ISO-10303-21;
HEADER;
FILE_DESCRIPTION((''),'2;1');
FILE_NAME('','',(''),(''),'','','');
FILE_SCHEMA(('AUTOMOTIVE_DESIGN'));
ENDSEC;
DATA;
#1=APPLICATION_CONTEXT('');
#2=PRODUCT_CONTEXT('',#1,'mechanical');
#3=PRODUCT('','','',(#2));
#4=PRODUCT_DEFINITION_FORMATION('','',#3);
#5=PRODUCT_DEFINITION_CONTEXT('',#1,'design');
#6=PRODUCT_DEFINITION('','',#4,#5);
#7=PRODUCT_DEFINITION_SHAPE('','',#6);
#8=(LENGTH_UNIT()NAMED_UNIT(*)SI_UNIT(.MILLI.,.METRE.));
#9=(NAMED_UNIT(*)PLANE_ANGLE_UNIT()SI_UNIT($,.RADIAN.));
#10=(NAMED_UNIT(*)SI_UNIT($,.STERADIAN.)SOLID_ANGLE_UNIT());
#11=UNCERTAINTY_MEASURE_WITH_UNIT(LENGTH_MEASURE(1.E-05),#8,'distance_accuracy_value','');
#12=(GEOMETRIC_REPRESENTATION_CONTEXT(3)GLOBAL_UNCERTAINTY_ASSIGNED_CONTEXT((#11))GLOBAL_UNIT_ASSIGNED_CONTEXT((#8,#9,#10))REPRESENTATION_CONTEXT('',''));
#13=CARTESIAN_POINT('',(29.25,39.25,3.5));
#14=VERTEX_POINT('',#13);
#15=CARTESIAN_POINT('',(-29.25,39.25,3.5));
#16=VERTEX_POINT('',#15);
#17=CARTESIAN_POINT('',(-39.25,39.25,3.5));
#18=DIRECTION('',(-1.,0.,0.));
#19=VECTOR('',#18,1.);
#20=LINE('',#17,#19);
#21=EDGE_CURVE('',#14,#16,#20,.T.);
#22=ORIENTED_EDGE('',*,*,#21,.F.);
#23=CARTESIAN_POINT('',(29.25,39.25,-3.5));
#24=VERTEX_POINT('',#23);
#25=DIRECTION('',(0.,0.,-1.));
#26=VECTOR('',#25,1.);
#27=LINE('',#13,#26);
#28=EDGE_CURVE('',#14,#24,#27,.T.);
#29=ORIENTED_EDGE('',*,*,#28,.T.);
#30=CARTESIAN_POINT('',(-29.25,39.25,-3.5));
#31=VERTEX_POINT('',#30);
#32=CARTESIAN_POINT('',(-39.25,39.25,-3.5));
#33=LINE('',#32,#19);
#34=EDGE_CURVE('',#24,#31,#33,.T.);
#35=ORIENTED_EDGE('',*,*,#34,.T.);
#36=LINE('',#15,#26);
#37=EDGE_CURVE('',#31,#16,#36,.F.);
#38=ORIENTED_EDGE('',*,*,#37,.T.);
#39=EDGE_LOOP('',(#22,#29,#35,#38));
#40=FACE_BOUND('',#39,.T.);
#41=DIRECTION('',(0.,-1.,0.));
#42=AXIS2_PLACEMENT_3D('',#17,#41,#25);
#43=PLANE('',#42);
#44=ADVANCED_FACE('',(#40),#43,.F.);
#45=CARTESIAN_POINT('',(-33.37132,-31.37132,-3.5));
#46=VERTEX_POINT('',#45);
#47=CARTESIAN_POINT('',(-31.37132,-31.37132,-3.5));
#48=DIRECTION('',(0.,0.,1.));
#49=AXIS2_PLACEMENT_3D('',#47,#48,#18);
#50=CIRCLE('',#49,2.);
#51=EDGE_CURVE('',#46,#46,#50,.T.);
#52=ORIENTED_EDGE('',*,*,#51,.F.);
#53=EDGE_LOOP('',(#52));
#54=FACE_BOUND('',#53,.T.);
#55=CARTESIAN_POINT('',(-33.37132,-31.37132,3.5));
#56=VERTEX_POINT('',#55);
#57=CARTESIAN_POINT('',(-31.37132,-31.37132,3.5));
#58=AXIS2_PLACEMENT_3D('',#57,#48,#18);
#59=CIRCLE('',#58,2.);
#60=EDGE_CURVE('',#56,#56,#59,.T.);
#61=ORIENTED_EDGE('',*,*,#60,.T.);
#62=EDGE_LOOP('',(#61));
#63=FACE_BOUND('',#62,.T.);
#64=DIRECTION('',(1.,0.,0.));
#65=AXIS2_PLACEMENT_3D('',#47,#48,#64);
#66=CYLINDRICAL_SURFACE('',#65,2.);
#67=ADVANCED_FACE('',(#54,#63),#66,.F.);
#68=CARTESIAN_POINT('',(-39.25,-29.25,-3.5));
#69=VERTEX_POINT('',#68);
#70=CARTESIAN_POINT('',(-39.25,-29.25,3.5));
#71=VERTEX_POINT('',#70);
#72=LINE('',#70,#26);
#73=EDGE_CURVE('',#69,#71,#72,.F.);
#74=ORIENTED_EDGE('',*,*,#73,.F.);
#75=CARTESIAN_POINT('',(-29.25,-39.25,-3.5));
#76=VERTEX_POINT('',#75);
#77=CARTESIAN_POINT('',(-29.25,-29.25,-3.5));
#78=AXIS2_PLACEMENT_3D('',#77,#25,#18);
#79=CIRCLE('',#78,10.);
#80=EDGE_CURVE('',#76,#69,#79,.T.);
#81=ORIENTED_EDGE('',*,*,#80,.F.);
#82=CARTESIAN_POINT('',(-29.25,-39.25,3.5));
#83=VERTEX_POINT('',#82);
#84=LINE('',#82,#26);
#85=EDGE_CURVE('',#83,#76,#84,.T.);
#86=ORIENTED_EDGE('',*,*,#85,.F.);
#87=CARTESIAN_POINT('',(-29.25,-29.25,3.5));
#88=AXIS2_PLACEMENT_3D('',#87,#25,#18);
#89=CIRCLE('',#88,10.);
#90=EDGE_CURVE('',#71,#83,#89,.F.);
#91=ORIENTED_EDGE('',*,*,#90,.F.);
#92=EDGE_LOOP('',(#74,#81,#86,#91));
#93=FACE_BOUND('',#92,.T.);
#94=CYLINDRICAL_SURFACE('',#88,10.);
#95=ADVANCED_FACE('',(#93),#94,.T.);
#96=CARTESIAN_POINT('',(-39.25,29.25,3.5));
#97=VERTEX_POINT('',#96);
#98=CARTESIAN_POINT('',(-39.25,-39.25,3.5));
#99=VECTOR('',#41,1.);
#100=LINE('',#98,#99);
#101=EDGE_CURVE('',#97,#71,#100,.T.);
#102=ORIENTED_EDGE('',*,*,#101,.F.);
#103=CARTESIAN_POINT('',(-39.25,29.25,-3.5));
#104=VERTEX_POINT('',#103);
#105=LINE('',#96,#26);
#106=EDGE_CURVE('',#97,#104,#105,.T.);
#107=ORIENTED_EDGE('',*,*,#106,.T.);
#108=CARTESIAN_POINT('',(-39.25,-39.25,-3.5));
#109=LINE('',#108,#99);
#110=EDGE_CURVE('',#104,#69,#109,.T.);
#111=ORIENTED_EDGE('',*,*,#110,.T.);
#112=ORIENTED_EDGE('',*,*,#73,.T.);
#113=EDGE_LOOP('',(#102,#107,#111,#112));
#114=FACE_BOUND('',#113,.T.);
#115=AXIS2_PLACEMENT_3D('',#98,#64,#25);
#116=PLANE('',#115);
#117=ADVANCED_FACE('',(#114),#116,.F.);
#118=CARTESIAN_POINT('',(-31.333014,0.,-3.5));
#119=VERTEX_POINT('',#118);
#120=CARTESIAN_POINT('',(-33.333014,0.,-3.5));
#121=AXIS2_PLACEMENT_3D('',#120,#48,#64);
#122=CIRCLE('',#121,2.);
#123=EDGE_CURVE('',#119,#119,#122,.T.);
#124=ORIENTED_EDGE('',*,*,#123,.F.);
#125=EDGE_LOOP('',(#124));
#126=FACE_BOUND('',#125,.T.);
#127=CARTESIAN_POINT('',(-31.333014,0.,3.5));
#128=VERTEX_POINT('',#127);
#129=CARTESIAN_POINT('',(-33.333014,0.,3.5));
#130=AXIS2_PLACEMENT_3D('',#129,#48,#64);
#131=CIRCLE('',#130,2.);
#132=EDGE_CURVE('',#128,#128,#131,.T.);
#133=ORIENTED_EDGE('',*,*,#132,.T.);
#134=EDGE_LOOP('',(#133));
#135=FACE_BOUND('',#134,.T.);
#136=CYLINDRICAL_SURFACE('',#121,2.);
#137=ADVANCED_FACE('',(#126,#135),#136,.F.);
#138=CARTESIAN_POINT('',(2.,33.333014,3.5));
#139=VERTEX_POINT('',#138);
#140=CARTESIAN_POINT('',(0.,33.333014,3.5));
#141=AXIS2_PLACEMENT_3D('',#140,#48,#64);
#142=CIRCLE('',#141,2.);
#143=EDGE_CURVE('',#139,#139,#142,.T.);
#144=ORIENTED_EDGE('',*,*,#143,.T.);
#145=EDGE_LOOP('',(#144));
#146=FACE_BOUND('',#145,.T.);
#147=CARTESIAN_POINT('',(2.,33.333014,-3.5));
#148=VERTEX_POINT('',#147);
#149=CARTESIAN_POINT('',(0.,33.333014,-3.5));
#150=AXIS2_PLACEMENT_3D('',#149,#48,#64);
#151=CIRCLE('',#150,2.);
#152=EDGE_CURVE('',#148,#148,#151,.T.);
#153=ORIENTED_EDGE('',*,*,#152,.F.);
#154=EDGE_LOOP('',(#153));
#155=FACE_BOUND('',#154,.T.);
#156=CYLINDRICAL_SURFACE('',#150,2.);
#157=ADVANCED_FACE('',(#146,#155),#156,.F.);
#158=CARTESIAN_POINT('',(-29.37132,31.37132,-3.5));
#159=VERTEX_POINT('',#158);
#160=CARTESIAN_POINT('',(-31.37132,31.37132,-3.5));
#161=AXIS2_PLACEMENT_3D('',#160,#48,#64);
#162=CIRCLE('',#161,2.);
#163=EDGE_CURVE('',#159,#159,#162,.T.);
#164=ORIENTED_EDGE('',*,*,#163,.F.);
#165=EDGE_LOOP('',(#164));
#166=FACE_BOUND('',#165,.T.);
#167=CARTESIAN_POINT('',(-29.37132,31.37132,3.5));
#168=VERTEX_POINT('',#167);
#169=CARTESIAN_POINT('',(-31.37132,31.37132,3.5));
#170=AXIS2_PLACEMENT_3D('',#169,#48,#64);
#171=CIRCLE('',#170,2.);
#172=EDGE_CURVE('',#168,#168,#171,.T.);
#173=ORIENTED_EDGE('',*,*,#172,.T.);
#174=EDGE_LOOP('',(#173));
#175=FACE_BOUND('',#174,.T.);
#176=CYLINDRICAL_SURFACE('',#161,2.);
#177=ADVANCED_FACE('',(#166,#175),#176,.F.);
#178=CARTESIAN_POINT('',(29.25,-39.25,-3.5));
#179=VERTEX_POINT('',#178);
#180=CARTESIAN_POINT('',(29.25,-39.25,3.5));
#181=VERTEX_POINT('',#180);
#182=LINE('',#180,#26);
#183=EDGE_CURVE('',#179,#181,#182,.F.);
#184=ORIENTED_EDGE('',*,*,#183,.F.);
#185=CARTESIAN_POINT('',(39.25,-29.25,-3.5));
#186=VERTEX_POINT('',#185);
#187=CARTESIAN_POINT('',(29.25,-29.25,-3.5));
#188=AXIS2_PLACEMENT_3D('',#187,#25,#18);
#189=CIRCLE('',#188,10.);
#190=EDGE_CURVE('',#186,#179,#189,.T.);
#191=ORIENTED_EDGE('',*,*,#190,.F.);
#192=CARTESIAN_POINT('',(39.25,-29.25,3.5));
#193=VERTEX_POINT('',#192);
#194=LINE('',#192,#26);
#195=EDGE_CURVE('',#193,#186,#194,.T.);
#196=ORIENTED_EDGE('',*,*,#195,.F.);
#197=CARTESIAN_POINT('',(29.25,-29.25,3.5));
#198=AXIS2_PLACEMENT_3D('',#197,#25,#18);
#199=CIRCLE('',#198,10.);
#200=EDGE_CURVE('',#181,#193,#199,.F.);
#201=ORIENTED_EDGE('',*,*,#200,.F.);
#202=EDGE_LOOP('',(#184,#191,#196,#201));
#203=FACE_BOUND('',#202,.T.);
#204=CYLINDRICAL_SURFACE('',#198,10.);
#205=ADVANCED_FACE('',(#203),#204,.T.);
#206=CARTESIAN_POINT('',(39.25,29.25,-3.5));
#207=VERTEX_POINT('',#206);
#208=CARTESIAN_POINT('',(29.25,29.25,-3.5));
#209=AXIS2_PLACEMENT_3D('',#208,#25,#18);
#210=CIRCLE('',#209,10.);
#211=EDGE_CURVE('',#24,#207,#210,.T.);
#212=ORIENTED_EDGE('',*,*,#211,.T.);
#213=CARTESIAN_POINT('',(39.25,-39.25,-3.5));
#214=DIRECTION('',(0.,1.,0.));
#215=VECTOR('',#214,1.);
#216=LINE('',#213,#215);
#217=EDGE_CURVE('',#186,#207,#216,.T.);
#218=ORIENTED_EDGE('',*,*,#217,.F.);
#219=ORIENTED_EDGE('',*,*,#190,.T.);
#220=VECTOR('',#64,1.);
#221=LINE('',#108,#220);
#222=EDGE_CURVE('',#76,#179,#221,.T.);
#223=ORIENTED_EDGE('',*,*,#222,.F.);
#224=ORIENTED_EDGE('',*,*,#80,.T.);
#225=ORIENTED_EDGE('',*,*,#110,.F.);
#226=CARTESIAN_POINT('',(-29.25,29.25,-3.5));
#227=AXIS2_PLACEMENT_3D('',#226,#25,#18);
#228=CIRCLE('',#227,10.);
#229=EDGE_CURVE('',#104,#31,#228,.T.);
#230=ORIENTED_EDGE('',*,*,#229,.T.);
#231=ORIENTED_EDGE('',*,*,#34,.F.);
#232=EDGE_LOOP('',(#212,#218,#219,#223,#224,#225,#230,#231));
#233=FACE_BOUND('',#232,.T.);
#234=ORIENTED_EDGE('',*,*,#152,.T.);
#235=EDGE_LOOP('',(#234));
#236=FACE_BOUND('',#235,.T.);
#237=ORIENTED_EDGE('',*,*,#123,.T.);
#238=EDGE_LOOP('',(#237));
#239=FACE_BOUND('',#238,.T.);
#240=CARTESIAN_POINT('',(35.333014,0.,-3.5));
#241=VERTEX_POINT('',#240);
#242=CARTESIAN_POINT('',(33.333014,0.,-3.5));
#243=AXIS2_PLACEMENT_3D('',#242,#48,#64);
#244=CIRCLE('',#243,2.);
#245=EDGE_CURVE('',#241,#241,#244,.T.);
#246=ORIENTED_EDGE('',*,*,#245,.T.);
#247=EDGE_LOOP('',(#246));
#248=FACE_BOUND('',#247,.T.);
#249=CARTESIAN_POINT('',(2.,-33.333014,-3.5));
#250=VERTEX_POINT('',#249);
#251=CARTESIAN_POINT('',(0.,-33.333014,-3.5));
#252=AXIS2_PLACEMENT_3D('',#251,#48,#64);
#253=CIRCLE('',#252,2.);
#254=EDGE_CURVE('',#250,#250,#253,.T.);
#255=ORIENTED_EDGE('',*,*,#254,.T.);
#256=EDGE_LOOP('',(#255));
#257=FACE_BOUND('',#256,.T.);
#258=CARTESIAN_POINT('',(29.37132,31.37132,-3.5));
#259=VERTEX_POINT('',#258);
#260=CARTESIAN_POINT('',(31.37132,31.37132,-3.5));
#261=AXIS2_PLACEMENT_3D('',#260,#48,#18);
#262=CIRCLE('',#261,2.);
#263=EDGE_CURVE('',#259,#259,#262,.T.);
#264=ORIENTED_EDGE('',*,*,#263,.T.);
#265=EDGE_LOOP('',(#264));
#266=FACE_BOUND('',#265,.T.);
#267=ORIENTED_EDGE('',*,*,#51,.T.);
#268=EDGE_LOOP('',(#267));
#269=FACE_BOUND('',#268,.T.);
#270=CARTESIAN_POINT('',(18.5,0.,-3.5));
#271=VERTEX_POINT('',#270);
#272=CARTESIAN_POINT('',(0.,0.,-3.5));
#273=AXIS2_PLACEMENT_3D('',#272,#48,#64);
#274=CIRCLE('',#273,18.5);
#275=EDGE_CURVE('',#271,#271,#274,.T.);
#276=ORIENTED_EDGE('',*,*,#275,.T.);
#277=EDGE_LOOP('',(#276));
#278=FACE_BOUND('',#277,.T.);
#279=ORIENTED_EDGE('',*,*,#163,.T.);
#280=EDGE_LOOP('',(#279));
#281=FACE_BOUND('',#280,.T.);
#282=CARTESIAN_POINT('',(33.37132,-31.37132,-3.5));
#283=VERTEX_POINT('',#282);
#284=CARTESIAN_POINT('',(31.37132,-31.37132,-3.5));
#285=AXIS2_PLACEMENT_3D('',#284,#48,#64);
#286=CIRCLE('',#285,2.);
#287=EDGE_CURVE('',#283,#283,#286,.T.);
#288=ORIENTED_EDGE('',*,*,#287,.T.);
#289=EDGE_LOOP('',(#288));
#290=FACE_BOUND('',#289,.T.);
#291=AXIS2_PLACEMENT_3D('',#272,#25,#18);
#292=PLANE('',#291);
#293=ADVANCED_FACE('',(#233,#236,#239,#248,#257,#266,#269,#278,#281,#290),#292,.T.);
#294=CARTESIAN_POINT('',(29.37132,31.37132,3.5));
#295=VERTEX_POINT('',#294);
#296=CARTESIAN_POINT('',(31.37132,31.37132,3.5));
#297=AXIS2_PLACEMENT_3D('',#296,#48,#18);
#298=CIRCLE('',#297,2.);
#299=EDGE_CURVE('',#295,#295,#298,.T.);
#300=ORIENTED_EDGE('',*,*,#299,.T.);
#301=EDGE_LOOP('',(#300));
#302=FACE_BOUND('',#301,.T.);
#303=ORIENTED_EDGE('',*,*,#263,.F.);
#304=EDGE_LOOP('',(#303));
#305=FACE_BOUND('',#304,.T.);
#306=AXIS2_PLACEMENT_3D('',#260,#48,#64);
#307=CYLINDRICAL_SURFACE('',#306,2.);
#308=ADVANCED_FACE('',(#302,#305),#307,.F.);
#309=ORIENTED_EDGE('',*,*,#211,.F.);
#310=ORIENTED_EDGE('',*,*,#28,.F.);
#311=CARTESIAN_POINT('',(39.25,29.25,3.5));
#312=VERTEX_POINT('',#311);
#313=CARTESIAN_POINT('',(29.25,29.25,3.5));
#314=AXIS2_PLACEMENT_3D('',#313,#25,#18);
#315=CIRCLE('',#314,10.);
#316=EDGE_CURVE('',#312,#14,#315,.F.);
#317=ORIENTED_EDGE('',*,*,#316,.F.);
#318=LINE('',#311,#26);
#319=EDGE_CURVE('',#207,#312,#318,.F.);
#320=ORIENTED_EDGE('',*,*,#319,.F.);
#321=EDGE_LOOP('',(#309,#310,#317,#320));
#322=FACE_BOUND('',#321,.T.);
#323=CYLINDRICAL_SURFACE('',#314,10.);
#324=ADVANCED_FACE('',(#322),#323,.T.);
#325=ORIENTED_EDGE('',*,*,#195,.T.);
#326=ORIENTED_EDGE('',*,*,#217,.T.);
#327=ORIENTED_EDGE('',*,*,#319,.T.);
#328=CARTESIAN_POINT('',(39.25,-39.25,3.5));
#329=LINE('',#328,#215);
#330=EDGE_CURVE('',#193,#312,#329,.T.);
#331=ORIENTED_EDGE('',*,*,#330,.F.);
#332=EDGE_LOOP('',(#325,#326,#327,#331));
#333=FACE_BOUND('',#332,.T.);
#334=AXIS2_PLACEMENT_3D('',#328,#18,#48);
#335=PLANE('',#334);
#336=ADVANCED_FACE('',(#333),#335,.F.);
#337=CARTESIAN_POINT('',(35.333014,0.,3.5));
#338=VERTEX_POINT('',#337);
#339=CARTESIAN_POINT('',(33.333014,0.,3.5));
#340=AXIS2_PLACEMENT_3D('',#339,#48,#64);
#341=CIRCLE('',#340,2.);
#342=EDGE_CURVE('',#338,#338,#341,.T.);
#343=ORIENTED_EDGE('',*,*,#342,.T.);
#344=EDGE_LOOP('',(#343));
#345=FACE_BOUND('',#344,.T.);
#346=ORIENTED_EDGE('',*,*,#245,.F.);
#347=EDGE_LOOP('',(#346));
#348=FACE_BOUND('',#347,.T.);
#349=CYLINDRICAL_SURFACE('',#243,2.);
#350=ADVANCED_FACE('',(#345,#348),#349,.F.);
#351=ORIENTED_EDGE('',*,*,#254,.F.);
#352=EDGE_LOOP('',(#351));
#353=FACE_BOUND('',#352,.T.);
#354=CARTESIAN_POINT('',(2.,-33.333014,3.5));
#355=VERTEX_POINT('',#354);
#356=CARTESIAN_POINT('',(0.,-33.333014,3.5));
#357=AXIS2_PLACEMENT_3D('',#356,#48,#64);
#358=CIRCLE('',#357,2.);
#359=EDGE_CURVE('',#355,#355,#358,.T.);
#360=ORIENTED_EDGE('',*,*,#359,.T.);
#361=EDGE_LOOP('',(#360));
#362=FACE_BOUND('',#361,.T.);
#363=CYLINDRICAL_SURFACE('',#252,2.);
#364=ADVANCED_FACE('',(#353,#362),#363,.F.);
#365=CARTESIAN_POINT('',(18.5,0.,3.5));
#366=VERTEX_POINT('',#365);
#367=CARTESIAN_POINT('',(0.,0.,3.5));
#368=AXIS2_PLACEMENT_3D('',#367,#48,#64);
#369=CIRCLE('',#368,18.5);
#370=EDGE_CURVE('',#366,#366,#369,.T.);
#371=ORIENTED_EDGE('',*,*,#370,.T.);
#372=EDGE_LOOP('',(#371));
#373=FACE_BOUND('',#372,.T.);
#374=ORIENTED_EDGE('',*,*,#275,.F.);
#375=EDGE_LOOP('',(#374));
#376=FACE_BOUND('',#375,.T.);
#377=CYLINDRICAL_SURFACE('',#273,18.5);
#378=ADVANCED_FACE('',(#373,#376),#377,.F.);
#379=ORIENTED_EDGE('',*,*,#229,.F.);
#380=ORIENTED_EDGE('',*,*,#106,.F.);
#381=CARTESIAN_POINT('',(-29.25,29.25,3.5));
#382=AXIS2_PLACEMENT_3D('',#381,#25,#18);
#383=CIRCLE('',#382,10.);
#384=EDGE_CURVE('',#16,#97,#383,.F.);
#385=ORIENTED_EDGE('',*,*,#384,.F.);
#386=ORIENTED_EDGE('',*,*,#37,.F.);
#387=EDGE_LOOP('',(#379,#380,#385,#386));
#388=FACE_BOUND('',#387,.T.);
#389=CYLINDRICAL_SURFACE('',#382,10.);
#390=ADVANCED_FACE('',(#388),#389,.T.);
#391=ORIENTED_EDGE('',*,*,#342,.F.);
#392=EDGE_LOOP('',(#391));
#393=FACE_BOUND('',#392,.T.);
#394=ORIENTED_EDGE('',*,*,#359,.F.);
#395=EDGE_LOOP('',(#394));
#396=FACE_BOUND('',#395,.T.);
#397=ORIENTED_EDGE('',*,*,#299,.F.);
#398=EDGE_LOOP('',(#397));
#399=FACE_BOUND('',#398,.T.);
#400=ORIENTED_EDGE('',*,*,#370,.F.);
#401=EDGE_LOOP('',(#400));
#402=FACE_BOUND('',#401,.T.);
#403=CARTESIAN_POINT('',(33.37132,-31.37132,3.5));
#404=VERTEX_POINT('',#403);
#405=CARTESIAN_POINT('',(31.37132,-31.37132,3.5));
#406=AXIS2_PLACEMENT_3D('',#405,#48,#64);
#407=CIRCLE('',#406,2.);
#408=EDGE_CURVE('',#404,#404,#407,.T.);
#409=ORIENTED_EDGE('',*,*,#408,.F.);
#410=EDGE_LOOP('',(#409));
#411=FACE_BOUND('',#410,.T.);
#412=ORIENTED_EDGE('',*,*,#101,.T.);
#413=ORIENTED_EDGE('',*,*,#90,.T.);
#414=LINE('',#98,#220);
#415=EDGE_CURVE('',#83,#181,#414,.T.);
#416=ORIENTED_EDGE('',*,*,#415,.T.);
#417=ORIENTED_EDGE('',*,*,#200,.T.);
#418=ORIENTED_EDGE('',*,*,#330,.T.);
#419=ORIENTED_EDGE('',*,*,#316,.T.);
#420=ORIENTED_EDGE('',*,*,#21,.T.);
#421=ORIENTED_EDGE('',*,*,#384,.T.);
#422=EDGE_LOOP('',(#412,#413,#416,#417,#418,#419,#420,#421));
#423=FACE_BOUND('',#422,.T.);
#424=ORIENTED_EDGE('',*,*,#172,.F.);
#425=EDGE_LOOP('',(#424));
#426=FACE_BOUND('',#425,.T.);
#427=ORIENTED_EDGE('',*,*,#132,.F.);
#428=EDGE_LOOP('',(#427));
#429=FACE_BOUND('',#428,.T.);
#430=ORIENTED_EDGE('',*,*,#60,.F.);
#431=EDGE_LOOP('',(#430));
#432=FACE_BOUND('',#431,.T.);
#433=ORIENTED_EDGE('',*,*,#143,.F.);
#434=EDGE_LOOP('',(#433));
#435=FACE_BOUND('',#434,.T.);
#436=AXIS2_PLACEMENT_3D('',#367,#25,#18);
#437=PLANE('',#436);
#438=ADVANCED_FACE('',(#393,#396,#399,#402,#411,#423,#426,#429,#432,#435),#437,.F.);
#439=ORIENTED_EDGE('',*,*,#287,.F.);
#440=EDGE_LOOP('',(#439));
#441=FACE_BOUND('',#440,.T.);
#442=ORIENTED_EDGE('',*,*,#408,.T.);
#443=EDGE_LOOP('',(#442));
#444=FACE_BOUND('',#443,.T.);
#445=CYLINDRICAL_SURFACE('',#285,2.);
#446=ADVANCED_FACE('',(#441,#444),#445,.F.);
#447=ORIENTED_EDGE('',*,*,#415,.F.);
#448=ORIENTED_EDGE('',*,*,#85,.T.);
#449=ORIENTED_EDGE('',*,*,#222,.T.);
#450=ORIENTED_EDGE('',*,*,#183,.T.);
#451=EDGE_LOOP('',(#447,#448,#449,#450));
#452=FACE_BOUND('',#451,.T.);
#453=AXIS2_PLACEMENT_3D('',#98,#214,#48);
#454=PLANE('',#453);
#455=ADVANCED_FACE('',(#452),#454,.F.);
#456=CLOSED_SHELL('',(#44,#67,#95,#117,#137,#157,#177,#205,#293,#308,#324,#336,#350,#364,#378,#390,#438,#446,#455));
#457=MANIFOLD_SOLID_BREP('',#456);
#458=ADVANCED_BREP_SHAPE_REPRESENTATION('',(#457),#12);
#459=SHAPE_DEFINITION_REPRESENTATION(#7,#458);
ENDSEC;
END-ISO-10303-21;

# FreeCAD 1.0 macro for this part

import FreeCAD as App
import Part
import Sketcher

V = App.Vector


def edges_at(feature, points):
    """Names of the edges that pass closest to the given points."""
    edges = feature.Shape.Edges
    near = lambda p: min(range(len(edges)), key=lambda i: edges[i].distToShape(Part.Vertex(*p))[0])
    return sorted({f"Edge{near(p) + 1}" for p in points})


def add_polygon(sketch, points):
    """Adds a closed chain of lines whose ends are joined by coincident constraints."""
    first, n = sketch.GeometryCount, len(points)
    for a, b in zip(points, points[1:] + points[:1]):
        sketch.addGeometry(Part.LineSegment(App.Vector(*a, 0), App.Vector(*b, 0)), False)
    for i in range(n):
        sketch.addConstraint(Sketcher.Constraint("Coincident", first + i, 2, first + (i + 1) % n, 1))

doc = App.newDocument("Part")
body = doc.addObject("PartDesign::Body", "Body")

# Sketch on XY plane
sketch1 = body.newObject("Sketcher::SketchObject", "Sketch")
sketch1.AttachmentSupport = (doc.getObject("XY_Plane"), [""])
sketch1.MapMode = "FlatFace"
add_polygon(sketch1, [(-39, 39), (-39, -39), (39, -39), (39, 39)])  # lines 0-3
sketch1.addConstraint([
    Sketcher.Constraint("Vertical", 0),
    Sketcher.Constraint("Horizontal", 1),
    Sketcher.Constraint("Vertical", 2),
    Sketcher.Constraint("Horizontal", 3),
    Sketcher.Constraint("Symmetric", 0, 2, 2, 2, -1, 1),
    Sketcher.Constraint("Equal", 3, 0),
    Sketcher.Constraint("DistanceX", 1, 1, 1, 2, 78.5),
])
pad1 = body.newObject("PartDesign::Pad", "Pad")
pad1.Profile = sketch1
pad1.Length = 7
pad1.Midplane = True
doc.recompute()

fillet = body.newObject("PartDesign::Fillet", "Fillet")
fillet.Base = (pad1, edges_at(pad1, [
    (39.25, -39.25, 0),
    (-39.25, -39.25, 0),
    (-39.25, 39.25, 0),
    (39.25, 39.25, 0),
]))
fillet.Radius = 10

# Sketch on XY plane
sketch2 = body.newObject("Sketcher::SketchObject", "Sketch001")
sketch2.AttachmentSupport = (doc.getObject("XY_Plane"), [""])
sketch2.MapMode = "FlatFace"
sketch2.AttachmentOffset = App.Placement(V(0, 0, 3.5), App.Rotation())
sketch2.addGeometry([
    Part.Circle(V(-31.4, 31.4, 0), V(0, 0, 1), 2),
    Part.Circle(V(-31.4, -31.4, 0), V(0, 0, 1), 2),
    Part.Circle(V(31.4, 31.4, 0), V(0, 0, 1), 2),
    Part.Circle(V(31.4, -31.4, 0), V(0, 0, 1), 2),
], False)
sketch2.addConstraint([
    Sketcher.Constraint("Equal", 0, 1),
    Sketcher.Constraint("Equal", 1, 2),
    Sketcher.Constraint("Equal", 2, 3),
    Sketcher.Constraint("Symmetric", 1, 3, 2, 3, -1, 1),
    Sketcher.Constraint("Symmetric", 0, 3, 3, 3, -1, 1),
    Sketcher.Constraint("Symmetric", 0, 3, 2, 3, -2),
    Sketcher.Constraint("Diameter", 0, 4.0),
    Sketcher.Constraint("DistanceX", 0, 3, -1, 1, 31.37132),
    Sketcher.Constraint("DistanceY", -1, 1, 0, 3, 31.37132),
])
pocket1 = body.newObject("PartDesign::Pocket", "Pocket")
pocket1.Profile = sketch2
pocket1.Type = "ThroughAll"

# Sketch on XY plane
sketch3 = body.newObject("Sketcher::SketchObject", "Sketch002")
sketch3.AttachmentSupport = (doc.getObject("XY_Plane"), [""])
sketch3.MapMode = "FlatFace"
sketch3.AttachmentOffset = App.Placement(V(0, 0, 3.5), App.Rotation())
sketch3.addGeometry(Part.Circle(V(0, 0, 0), V(0, 0, 1), 18), False)
sketch3.addConstraint([
    Sketcher.Constraint("Coincident", 0, 3, -1, 1),
    Sketcher.Constraint("Diameter", 0, 37.0),
])
pocket2 = body.newObject("PartDesign::Pocket", "Pocket001")
pocket2.Profile = sketch3
pocket2.Type = "ThroughAll"

# Sketch on XY plane
sketch4 = body.newObject("Sketcher::SketchObject", "Sketch003")
sketch4.AttachmentSupport = (doc.getObject("XY_Plane"), [""])
sketch4.MapMode = "FlatFace"
sketch4.AttachmentOffset = App.Placement(V(0, 0, 3.5), App.Rotation())
sketch4.addGeometry([
    Part.Circle(V(0, 33.3, 0), V(0, 0, 1), 2),
    Part.Circle(V(-33.3, 0, 0), V(0, 0, 1), 2),
    Part.Circle(V(0, -33.3, 0), V(0, 0, 1), 2),
    Part.Circle(V(33.3, 0, 0), V(0, 0, 1), 2),
], False)
sketch4.addConstraint([
    Sketcher.Constraint("Equal", 0, 1),
    Sketcher.Constraint("Equal", 1, 2),
    Sketcher.Constraint("Equal", 2, 3),
    Sketcher.Constraint("Symmetric", 0, 3, 2, 3, -1, 1),
    Sketcher.Constraint("Symmetric", 1, 3, 3, 3, -1, 1),
    Sketcher.Constraint("PointOnObject", 0, 3, -2),
    Sketcher.Constraint("PointOnObject", 1, 3, -1),
    Sketcher.Constraint("Diameter", 0, 4.0),
    Sketcher.Constraint("DistanceY", -1, 1, 0, 3, 33.333014),
    Sketcher.Constraint("DistanceX", 1, 3, -1, 1, 33.333014),
])
pocket3 = body.newObject("PartDesign::Pocket", "Pocket002")
pocket3.Profile = sketch4
pocket3.Type = "ThroughAll"

doc.recompute()
